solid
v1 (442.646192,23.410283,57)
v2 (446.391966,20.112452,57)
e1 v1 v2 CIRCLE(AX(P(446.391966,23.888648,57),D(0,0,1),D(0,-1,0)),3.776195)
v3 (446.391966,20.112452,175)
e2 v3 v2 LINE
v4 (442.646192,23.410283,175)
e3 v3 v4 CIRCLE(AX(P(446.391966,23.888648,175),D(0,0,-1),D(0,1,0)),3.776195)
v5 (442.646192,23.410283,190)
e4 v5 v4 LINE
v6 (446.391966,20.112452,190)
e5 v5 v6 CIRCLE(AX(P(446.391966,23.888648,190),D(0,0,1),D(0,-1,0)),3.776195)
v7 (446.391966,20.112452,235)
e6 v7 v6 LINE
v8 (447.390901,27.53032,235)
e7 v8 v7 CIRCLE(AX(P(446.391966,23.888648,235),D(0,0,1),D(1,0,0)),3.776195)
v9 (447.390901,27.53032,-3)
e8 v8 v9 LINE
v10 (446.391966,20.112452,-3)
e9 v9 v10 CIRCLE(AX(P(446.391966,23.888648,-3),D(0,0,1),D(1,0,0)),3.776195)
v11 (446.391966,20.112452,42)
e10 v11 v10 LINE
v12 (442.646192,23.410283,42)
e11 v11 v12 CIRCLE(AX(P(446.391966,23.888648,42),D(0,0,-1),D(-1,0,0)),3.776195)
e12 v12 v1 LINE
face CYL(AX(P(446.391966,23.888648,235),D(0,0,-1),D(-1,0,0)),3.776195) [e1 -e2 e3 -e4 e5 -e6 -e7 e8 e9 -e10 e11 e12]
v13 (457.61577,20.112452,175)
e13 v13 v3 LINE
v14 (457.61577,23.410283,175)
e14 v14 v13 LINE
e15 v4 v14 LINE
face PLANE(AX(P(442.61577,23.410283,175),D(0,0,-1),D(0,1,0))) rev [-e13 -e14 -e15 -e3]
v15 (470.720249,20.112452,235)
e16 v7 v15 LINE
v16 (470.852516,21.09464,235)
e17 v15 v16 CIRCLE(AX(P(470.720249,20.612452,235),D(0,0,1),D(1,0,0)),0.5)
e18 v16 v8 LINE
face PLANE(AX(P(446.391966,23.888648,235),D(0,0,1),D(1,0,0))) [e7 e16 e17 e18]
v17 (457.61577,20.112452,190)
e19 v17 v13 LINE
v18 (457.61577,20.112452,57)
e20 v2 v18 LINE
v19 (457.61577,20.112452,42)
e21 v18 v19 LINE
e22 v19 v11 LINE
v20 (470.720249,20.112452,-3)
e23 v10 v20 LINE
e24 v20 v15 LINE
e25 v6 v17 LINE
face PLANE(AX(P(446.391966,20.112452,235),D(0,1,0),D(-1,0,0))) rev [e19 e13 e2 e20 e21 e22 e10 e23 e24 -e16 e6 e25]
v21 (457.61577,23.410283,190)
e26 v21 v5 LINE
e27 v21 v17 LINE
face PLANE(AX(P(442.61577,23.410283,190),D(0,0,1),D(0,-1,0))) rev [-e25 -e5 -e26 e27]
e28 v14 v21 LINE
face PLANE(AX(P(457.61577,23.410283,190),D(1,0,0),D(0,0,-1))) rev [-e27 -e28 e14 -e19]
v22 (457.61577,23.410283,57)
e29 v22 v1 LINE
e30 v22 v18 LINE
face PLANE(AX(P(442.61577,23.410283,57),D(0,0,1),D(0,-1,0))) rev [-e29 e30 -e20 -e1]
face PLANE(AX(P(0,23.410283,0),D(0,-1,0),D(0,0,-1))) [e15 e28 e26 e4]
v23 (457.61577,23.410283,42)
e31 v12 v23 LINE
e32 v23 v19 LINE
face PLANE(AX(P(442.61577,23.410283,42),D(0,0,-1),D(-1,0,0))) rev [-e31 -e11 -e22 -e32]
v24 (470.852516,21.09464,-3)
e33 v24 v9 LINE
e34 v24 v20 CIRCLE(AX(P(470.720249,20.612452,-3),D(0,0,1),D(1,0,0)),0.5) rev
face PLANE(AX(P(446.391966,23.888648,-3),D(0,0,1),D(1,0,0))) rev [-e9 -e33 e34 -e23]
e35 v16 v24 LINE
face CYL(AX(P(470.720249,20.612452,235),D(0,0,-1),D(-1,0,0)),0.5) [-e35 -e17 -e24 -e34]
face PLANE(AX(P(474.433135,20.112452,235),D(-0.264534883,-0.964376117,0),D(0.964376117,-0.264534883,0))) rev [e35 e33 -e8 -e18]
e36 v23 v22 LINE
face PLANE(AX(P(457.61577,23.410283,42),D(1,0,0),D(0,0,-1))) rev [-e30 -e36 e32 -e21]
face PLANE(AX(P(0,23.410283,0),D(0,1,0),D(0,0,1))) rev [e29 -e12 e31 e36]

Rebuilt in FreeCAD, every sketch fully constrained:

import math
import FreeCAD as App
import Part
import Sketcher

V = App.Vector
Q = App.Units.Quantity


def edges_at(feature, points):
    """Names of the edges that pass closest to the given points."""
    edges = feature.Shape.Edges
    near = lambda p: min(range(len(edges)), key=lambda i: edges[i].distToShape(Part.Vertex(*p))[0])
    return sorted({f"Edge{near(p) + 1}" for p in points})


def add_polygon(sketch, points):
    """Adds a closed chain of lines whose ends are joined by coincident constraints."""
    first, n = sketch.GeometryCount, len(points)
    for a, b in zip(points, points[1:] + points[:1]):
        sketch.addGeometry(Part.LineSegment(App.Vector(*a, 0), App.Vector(*b, 0)), False)
    for i in range(n):
        sketch.addConstraint(Sketcher.Constraint("Coincident", first + i, 2, first + (i + 1) % n, 1))

doc = App.newDocument("Part")
params = doc.addObject("Spreadsheet::Sheet", "Params")
for row, (alias, value) in enumerate([
    ("pad1_length", "238 mm"),
    ("sketch2_width", "15 mm"),
    ("pocket1_length", "54 mm"),
    ("fillet_radius", "0.5 mm"),
], start=1):
    params.set(f"A{row}", alias)
    params.set(f"B{row}", "=" + value)
    params.setAlias(f"B{row}", alias)

body = doc.addObject("PartDesign::Body", "Body")

# Sketch on XY plane
sketch1 = doc.addObject("Sketcher::SketchObject", "Sketch")
body.addObject(sketch1)
sketch1.AttachmentSupport = (doc.XY_Plane, [""])
sketch1.MapMode = "FlatFace"
sketch1.AttachmentOffset = App.Placement(V(0, 0, -3), App.Rotation())
sketch1.addGeometry([
    Part.LineSegment(V(446.4, 20.1, 0), V(474.4, 20.1, 0)),
    Part.LineSegment(V(474.4, 20.1, 0), V(447.4, 27.5, 0)),
    Part.ArcOfCircle(Part.Circle(V(446.4, 23.9, 0), V(0, 0, 1), 3.8), math.radians(75), math.radians(270)),
], False)
sketch1.addConstraint([
    Sketcher.Constraint("Coincident", 0, 2, 1, 1),
    Sketcher.Constraint("Tangent", 1, 2, 2, 1),
    Sketcher.Constraint("Tangent", 2, 2, 0, 1),
    Sketcher.Constraint("Horizontal", 0),
    Sketcher.Constraint("Radius", 2, Q("3.776195 mm")),
    Sketcher.Constraint("DistanceX", 0, 1, 0, 2, Q("28.04117 mm")),
    Sketcher.Constraint("DistanceX", -1, 1, 1, 2, Q("447.390901 mm")),
    Sketcher.Constraint("DistanceY", -1, 1, 1, 2, Q("27.53032 mm")),
])
pad1 = doc.addObject("PartDesign::Pad", "Pad")
body.addObject(pad1)
pad1.Profile = sketch1
pad1.setExpression("Length", "Params.pad1_length")

# Sketch on XZ plane
sketch2 = doc.addObject("Sketcher::SketchObject", "Sketch001")
body.addObject(sketch2)
sketch2.AttachmentSupport = (doc.XZ_Plane, [""])
sketch2.MapMode = "FlatFace"
sketch2.AttachmentOffset = App.Placement(V(0, 0, 30.589717), App.Rotation())
add_polygon(sketch2, [(443, 190), (443, 175), (458, 175), (458, 190)])  # lines 0-3
add_polygon(sketch2, [(443, 57), (443, 42), (458, 42), (458, 57)])  # lines 4-7
sketch2.addConstraint([
    Sketcher.Constraint("Vertical", 0),
    Sketcher.Constraint("Horizontal", 1),
    Sketcher.Constraint("Vertical", 2),
    Sketcher.Constraint("Horizontal", 3),
    Sketcher.Constraint("Vertical", 4),
    Sketcher.Constraint("Horizontal", 5),
    Sketcher.Constraint("Vertical", 6),
    Sketcher.Constraint("Horizontal", 7),
    Sketcher.Constraint("Vertical", 3, 2, 4, 2),
    Sketcher.Constraint("Vertical", 2, 2, 5, 2),
    Sketcher.Constraint("Equal", 7, 0),
    Sketcher.Constraint("Equal", 2, 4),
    Sketcher.Constraint("DistanceX", 1, 1, 1, 2, Q("15 mm")),
    Sketcher.Constraint("DistanceY", -1, 1, 0, 2, Q("175 mm")),
    Sketcher.Constraint("DistanceY", -1, 1, 4, 2, Q("42 mm")),
    Sketcher.Constraint("DistanceX", -1, 1, 0, 2, Q("442.61577 mm")),
])
sketch2.setExpression("Constraints[20]", "Params.sketch2_width")
pocket1 = doc.addObject("PartDesign::Pocket", "Pocket")
body.addObject(pocket1)
pocket1.Profile = sketch2
pocket1.setExpression("Length", "Params.pocket1_length")
doc.recompute()

fillet = doc.addObject("PartDesign::Fillet", "Fillet")
body.addObject(fillet)
fillet.Base = (pocket1, edges_at(pocket1, [(474.433, 20.112, 116)]))
fillet.setExpression("Radius", "Params.fillet_radius")

doc.recompute()
